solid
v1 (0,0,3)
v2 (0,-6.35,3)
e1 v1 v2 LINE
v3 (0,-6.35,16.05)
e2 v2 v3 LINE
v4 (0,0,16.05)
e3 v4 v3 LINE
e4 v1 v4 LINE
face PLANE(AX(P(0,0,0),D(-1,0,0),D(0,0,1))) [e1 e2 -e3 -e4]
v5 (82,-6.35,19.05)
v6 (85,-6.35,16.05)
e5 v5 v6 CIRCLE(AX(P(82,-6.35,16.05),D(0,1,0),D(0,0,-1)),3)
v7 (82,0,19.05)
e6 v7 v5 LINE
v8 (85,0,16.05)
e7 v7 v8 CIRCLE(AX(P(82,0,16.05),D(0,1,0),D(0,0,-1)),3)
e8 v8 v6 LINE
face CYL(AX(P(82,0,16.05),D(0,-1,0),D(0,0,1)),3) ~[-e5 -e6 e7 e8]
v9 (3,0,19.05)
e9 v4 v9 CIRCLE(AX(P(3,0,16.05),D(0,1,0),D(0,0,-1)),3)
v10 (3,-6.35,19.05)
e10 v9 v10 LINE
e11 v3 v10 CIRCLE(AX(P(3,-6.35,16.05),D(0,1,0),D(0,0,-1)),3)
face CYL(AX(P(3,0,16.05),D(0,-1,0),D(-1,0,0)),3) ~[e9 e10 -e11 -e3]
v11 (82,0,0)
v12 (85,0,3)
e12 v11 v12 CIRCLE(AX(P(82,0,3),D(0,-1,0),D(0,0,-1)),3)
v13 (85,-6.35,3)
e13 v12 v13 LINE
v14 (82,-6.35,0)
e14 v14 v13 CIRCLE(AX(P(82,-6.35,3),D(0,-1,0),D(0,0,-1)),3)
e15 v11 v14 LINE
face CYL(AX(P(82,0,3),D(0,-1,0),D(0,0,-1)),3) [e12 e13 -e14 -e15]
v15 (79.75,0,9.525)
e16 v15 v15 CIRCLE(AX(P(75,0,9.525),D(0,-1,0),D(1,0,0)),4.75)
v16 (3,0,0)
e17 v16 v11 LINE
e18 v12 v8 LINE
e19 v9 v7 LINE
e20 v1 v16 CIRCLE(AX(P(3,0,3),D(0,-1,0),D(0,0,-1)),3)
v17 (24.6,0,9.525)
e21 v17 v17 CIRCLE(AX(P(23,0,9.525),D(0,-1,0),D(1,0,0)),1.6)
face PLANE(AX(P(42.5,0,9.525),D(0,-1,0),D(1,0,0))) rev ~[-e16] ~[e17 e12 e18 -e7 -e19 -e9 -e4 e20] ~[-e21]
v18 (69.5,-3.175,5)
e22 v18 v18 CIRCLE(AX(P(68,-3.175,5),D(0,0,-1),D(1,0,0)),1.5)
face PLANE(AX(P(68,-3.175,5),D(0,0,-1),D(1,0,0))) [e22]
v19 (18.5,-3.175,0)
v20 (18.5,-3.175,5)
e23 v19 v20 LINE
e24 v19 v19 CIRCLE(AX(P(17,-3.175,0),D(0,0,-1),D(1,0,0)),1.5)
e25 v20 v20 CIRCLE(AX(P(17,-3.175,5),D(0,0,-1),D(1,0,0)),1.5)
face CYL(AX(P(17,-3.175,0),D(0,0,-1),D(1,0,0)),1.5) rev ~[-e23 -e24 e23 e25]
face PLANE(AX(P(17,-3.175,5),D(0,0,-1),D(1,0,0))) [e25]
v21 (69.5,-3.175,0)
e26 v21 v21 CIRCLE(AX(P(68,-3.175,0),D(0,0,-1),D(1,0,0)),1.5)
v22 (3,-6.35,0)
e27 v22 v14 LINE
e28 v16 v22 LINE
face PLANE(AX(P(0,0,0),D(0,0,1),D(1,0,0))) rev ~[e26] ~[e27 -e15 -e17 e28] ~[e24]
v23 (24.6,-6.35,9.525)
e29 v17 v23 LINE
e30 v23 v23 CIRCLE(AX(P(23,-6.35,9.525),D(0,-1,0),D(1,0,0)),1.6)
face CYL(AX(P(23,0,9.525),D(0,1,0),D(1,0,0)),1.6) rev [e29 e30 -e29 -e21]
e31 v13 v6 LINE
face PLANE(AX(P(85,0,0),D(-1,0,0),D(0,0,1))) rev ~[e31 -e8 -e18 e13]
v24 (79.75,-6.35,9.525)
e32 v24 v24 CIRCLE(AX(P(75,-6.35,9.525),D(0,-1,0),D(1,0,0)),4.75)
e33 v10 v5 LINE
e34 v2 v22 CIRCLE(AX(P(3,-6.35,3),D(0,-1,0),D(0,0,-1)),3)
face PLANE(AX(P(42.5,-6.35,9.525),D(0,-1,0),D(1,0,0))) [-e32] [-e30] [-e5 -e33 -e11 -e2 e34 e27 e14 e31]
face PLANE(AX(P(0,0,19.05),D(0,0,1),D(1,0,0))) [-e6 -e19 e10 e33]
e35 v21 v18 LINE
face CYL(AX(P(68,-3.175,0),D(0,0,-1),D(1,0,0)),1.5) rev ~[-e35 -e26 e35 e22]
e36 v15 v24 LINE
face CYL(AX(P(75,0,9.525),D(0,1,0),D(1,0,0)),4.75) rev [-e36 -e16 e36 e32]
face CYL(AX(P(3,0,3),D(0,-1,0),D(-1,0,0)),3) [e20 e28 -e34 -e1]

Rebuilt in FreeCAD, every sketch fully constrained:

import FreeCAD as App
import Part
import Sketcher
Q = App.Units.Quantity


def edges_at(feature, points):
    """Names of the edges that pass closest to the given points."""
    edges = feature.Shape.Edges
    near = lambda p: min(range(len(edges)), key=lambda i: edges[i].distToShape(Part.Vertex(*p))[0])
    return sorted({f"Edge{near(p) + 1}" for p in points})


def add_polygon(sketch, points):
    """Adds a closed chain of lines whose ends are joined by coincident constraints."""
    first, n = sketch.GeometryCount, len(points)
    for a, b in zip(points, points[1:] + points[:1]):
        sketch.addGeometry(Part.LineSegment(App.Vector(*a, 0), App.Vector(*b, 0)), False)
    for i in range(n):
        sketch.addConstraint(Sketcher.Constraint("Coincident", first + i, 2, first + (i + 1) % n, 1))

doc = App.newDocument("Part")
params = doc.addObject("Spreadsheet::Sheet", "Params")
for row, (alias, value) in enumerate([
    ("sketch1_diameter", "3.2 mm"),
    ("sketch1_diameter2", "9.5 mm"),
    ("sketch1_width", "85 mm"),
    ("sketch1_height", "19.05 mm"),
    ("pad1_length", "6.35 mm"),
    ("fillet_radius", "3 mm"),
    ("sketch2_diameter", "3 mm"),
    ("pocket1_length", "5 mm"),
], start=1):
    params.set(f"A{row}", alias)
    params.set(f"B{row}", "=" + value)
    params.setAlias(f"B{row}", alias)

body = doc.addObject("PartDesign::Body", "Body")

sketch1 = body.newObject("Sketcher::SketchObject", "Sketch")
sketch1.AttachmentSupport = (doc.getObject("XZ_Plane"), [""])
sketch1.MapMode = "FlatFace"
add_polygon(sketch1, [(0, 19.05), (0, 0), (85, 0), (85, 19.05)])
sketch1.addGeometry(Part.Circle(App.Vector(23, 9.525, 0), App.Vector(0, 0, 1), 1.6), False)
sketch1.addGeometry(Part.Circle(App.Vector(75, 9.525, 0), App.Vector(0, 0, 1), 4.75), False)
sketch1.addConstraint([
    Sketcher.Constraint("Vertical", 0),
    Sketcher.Constraint("Horizontal", 1),
    Sketcher.Constraint("Vertical", 2),
    Sketcher.Constraint("Horizontal", 3),
    Sketcher.Constraint("Coincident", 0, 2, -1, 1),
    Sketcher.Constraint("Horizontal", 4, 3, 5, 3),
    Sketcher.Constraint("Diameter", 4, Q("3.2 mm")),
    Sketcher.Constraint("Diameter", 5, Q("9.5 mm")),
    Sketcher.Constraint("DistanceX", 1, 1, 1, 2, Q("85 mm")),
    Sketcher.Constraint("DistanceX", -1, 1, 4, 3, Q("23 mm")),
    Sketcher.Constraint("DistanceX", -1, 1, 5, 3, Q("75 mm")),
    Sketcher.Constraint("DistanceY", 0, 2, 0, 1, Q("19.05 mm")),
    Sketcher.Constraint("DistanceY", -1, 1, 4, 3, Q("9.525 mm")),
])
sketch1.setExpression("Constraints[10]", "Params.sketch1_diameter")
sketch1.setExpression("Constraints[11]", "Params.sketch1_diameter2")
sketch1.setExpression("Constraints[12]", "Params.sketch1_width")
sketch1.setExpression("Constraints[15]", "Params.sketch1_height")
pad1 = body.newObject("PartDesign::Pad", "Pad")
pad1.Profile = sketch1
pad1.setExpression("Length", "Params.pad1_length")
doc.recompute()

fillet = body.newObject("PartDesign::Fillet", "Fillet")
fillet.Base = (pad1, edges_at(pad1, [
    (85, -3.175, 19.05),
    (85, -3.175, 0),
    (0, -3.175, 19.05),
    (0, -3.175, 0),
]))
fillet.setExpression("Radius", "Params.fillet_radius")

sketch2 = body.newObject("Sketcher::SketchObject", "Sketch001")
sketch2.AttachmentSupport = (doc.getObject("XY_Plane"), [""])
sketch2.MapMode = "FlatFace"
sketch2.addGeometry([
    Part.Circle(App.Vector(17, -3.175, 0), App.Vector(0, 0, 1), 1.5),
    Part.Circle(App.Vector(68, -3.175, 0), App.Vector(0, 0, 1), 1.5),
], False)
sketch2.addConstraint([
    Sketcher.Constraint("Equal", 0, 1),
    Sketcher.Constraint("Horizontal", 0, 3, 1, 3),
    Sketcher.Constraint("Diameter", 0, Q("3 mm")),
    Sketcher.Constraint("DistanceX", -1, 1, 0, 3, Q("17 mm")),
    Sketcher.Constraint("DistanceX", -1, 1, 1, 3, Q("68 mm")),
    Sketcher.Constraint("DistanceY", 0, 3, -1, 1, Q("3.175 mm")),
])
sketch2.setExpression("Constraints[2]", "Params.sketch2_diameter")
pocket1 = body.newObject("PartDesign::Pocket", "Pocket")
pocket1.Profile = sketch2
pocket1.setExpression("Length", "Params.pocket1_length")
pocket1.Reversed = True

doc.recompute()
